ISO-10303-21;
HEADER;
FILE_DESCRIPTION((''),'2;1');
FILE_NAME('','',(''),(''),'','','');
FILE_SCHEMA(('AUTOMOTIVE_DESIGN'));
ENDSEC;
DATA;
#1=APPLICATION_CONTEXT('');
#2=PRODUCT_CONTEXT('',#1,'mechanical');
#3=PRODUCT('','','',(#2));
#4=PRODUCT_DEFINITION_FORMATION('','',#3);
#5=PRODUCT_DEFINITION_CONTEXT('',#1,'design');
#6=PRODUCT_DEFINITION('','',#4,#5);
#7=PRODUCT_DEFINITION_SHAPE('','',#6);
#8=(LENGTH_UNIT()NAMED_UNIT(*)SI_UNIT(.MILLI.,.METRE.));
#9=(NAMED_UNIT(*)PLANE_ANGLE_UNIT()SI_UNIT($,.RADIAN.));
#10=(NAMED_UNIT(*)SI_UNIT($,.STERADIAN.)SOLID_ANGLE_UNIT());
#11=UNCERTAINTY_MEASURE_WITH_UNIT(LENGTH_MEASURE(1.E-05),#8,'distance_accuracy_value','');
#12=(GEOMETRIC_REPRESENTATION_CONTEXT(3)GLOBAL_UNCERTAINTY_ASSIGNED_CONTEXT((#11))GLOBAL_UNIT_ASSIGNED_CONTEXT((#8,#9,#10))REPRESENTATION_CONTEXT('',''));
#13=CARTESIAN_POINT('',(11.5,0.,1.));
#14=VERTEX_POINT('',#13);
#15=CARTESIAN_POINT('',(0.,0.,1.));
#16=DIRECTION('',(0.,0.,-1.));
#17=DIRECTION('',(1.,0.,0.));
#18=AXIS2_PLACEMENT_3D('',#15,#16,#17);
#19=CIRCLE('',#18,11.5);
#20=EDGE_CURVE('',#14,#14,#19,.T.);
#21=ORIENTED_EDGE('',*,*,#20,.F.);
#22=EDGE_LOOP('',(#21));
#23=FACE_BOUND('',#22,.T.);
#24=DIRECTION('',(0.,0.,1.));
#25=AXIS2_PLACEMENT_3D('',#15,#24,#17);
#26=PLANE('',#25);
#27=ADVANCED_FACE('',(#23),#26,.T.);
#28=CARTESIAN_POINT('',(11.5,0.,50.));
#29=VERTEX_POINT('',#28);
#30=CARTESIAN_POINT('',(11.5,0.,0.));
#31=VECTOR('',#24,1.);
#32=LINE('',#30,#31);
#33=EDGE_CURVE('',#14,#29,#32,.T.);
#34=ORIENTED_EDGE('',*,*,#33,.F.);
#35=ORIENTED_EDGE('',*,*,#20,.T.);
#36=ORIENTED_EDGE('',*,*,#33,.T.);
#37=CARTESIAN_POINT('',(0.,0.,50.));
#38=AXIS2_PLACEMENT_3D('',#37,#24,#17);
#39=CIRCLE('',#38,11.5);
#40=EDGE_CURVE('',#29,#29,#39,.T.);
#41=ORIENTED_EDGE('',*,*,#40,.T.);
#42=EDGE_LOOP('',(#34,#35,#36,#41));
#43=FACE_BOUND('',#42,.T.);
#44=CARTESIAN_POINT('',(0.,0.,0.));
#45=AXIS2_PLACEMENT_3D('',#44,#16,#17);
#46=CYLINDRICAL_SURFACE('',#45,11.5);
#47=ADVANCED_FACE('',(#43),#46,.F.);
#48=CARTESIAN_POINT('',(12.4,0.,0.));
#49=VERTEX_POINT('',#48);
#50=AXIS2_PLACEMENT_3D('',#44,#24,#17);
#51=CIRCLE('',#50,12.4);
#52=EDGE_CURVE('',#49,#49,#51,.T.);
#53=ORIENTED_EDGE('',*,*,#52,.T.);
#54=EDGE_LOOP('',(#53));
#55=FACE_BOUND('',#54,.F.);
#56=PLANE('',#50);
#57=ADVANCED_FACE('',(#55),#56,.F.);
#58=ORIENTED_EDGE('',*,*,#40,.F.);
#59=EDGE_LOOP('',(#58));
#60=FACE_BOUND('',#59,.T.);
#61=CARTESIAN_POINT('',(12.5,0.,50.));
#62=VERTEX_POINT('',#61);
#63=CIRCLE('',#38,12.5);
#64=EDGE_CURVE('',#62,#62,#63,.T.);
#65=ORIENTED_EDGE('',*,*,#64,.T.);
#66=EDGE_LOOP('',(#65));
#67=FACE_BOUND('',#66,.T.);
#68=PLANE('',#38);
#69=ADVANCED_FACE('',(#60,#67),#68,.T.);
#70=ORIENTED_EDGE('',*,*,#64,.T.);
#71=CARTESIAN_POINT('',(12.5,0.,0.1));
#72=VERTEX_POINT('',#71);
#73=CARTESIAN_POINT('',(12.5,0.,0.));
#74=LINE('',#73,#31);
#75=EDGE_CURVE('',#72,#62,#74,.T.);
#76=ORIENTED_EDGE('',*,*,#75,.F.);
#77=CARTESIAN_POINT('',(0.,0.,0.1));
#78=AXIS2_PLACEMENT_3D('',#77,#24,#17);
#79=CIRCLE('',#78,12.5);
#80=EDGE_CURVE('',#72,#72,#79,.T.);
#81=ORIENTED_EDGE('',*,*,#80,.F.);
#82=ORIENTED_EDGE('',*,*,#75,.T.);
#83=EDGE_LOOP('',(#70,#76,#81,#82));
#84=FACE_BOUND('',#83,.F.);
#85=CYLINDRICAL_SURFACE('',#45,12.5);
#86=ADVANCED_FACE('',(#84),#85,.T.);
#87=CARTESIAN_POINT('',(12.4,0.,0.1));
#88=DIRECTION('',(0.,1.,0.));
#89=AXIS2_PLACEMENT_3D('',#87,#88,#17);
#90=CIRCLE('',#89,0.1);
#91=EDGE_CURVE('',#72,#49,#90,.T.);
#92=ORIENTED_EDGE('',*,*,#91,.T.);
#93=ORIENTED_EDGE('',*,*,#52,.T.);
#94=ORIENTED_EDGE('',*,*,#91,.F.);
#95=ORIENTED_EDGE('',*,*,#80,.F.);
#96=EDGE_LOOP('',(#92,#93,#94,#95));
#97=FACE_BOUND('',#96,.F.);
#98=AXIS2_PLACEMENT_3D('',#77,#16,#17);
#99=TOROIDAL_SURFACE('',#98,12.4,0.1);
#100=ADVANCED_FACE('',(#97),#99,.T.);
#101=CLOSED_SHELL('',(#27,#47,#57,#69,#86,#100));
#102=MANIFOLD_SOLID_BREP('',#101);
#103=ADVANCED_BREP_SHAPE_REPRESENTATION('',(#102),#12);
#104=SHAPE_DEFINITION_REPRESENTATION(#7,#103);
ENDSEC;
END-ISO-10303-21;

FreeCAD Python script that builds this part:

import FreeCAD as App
import Part
import Sketcher
from FreeCAD import Vector
Q = App.Units.Quantity


def edges_at(feature, points):
    """Names of the edges that pass closest to the given points."""
    edges = feature.Shape.Edges
    near = lambda p: min(range(len(edges)), key=lambda i: edges[i].distToShape(Part.Vertex(*p))[0])
    return sorted({f"Edge{near(p) + 1}" for p in points})


def faces_at(feature, points):
    """Names of the faces that lie closest to the given points."""
    faces = feature.Shape.Faces
    near = lambda p: min(range(len(faces)), key=lambda i: faces[i].distToShape(Part.Vertex(*p))[0])
    return sorted({f"Face{near(p) + 1}" for p in points})

doc = App.newDocument("Part")
body = doc.addObject("PartDesign::Body", "Body")

sketch1 = body.newObject("Sketcher::SketchObject", "Sketch")
sketch1.AttachmentSupport = (doc.getObject("XY_Plane"), [""])
sketch1.MapMode = "FlatFace"
sketch1.addGeometry(Part.Circle(Vector(0, 0, 0), Vector(0, 0, 1), 12), False)
sketch1.addConstraint([
    Sketcher.Constraint("Coincident", 0, 3, -1, 1),
    Sketcher.Constraint("Diameter", 0, Q("25 mm")),
])
pad1 = body.newObject("PartDesign::Pad", "Pad")
pad1.Profile = sketch1
pad1.Length = 50
doc.recompute()

thickness = body.newObject("PartDesign::Thickness", "Thickness")
thickness.Base = (pad1, faces_at(pad1, [(0, 0, 50)]))
thickness.Value = 1
thickness.Reversed = True
thickness.Join = "Arc"
doc.recompute()

fillet = body.newObject("PartDesign::Fillet", "Fillet")
fillet.Base = (thickness, edges_at(thickness, [(-12.5, 0, 0)]))
fillet.Radius = 0.1

doc.recompute()
